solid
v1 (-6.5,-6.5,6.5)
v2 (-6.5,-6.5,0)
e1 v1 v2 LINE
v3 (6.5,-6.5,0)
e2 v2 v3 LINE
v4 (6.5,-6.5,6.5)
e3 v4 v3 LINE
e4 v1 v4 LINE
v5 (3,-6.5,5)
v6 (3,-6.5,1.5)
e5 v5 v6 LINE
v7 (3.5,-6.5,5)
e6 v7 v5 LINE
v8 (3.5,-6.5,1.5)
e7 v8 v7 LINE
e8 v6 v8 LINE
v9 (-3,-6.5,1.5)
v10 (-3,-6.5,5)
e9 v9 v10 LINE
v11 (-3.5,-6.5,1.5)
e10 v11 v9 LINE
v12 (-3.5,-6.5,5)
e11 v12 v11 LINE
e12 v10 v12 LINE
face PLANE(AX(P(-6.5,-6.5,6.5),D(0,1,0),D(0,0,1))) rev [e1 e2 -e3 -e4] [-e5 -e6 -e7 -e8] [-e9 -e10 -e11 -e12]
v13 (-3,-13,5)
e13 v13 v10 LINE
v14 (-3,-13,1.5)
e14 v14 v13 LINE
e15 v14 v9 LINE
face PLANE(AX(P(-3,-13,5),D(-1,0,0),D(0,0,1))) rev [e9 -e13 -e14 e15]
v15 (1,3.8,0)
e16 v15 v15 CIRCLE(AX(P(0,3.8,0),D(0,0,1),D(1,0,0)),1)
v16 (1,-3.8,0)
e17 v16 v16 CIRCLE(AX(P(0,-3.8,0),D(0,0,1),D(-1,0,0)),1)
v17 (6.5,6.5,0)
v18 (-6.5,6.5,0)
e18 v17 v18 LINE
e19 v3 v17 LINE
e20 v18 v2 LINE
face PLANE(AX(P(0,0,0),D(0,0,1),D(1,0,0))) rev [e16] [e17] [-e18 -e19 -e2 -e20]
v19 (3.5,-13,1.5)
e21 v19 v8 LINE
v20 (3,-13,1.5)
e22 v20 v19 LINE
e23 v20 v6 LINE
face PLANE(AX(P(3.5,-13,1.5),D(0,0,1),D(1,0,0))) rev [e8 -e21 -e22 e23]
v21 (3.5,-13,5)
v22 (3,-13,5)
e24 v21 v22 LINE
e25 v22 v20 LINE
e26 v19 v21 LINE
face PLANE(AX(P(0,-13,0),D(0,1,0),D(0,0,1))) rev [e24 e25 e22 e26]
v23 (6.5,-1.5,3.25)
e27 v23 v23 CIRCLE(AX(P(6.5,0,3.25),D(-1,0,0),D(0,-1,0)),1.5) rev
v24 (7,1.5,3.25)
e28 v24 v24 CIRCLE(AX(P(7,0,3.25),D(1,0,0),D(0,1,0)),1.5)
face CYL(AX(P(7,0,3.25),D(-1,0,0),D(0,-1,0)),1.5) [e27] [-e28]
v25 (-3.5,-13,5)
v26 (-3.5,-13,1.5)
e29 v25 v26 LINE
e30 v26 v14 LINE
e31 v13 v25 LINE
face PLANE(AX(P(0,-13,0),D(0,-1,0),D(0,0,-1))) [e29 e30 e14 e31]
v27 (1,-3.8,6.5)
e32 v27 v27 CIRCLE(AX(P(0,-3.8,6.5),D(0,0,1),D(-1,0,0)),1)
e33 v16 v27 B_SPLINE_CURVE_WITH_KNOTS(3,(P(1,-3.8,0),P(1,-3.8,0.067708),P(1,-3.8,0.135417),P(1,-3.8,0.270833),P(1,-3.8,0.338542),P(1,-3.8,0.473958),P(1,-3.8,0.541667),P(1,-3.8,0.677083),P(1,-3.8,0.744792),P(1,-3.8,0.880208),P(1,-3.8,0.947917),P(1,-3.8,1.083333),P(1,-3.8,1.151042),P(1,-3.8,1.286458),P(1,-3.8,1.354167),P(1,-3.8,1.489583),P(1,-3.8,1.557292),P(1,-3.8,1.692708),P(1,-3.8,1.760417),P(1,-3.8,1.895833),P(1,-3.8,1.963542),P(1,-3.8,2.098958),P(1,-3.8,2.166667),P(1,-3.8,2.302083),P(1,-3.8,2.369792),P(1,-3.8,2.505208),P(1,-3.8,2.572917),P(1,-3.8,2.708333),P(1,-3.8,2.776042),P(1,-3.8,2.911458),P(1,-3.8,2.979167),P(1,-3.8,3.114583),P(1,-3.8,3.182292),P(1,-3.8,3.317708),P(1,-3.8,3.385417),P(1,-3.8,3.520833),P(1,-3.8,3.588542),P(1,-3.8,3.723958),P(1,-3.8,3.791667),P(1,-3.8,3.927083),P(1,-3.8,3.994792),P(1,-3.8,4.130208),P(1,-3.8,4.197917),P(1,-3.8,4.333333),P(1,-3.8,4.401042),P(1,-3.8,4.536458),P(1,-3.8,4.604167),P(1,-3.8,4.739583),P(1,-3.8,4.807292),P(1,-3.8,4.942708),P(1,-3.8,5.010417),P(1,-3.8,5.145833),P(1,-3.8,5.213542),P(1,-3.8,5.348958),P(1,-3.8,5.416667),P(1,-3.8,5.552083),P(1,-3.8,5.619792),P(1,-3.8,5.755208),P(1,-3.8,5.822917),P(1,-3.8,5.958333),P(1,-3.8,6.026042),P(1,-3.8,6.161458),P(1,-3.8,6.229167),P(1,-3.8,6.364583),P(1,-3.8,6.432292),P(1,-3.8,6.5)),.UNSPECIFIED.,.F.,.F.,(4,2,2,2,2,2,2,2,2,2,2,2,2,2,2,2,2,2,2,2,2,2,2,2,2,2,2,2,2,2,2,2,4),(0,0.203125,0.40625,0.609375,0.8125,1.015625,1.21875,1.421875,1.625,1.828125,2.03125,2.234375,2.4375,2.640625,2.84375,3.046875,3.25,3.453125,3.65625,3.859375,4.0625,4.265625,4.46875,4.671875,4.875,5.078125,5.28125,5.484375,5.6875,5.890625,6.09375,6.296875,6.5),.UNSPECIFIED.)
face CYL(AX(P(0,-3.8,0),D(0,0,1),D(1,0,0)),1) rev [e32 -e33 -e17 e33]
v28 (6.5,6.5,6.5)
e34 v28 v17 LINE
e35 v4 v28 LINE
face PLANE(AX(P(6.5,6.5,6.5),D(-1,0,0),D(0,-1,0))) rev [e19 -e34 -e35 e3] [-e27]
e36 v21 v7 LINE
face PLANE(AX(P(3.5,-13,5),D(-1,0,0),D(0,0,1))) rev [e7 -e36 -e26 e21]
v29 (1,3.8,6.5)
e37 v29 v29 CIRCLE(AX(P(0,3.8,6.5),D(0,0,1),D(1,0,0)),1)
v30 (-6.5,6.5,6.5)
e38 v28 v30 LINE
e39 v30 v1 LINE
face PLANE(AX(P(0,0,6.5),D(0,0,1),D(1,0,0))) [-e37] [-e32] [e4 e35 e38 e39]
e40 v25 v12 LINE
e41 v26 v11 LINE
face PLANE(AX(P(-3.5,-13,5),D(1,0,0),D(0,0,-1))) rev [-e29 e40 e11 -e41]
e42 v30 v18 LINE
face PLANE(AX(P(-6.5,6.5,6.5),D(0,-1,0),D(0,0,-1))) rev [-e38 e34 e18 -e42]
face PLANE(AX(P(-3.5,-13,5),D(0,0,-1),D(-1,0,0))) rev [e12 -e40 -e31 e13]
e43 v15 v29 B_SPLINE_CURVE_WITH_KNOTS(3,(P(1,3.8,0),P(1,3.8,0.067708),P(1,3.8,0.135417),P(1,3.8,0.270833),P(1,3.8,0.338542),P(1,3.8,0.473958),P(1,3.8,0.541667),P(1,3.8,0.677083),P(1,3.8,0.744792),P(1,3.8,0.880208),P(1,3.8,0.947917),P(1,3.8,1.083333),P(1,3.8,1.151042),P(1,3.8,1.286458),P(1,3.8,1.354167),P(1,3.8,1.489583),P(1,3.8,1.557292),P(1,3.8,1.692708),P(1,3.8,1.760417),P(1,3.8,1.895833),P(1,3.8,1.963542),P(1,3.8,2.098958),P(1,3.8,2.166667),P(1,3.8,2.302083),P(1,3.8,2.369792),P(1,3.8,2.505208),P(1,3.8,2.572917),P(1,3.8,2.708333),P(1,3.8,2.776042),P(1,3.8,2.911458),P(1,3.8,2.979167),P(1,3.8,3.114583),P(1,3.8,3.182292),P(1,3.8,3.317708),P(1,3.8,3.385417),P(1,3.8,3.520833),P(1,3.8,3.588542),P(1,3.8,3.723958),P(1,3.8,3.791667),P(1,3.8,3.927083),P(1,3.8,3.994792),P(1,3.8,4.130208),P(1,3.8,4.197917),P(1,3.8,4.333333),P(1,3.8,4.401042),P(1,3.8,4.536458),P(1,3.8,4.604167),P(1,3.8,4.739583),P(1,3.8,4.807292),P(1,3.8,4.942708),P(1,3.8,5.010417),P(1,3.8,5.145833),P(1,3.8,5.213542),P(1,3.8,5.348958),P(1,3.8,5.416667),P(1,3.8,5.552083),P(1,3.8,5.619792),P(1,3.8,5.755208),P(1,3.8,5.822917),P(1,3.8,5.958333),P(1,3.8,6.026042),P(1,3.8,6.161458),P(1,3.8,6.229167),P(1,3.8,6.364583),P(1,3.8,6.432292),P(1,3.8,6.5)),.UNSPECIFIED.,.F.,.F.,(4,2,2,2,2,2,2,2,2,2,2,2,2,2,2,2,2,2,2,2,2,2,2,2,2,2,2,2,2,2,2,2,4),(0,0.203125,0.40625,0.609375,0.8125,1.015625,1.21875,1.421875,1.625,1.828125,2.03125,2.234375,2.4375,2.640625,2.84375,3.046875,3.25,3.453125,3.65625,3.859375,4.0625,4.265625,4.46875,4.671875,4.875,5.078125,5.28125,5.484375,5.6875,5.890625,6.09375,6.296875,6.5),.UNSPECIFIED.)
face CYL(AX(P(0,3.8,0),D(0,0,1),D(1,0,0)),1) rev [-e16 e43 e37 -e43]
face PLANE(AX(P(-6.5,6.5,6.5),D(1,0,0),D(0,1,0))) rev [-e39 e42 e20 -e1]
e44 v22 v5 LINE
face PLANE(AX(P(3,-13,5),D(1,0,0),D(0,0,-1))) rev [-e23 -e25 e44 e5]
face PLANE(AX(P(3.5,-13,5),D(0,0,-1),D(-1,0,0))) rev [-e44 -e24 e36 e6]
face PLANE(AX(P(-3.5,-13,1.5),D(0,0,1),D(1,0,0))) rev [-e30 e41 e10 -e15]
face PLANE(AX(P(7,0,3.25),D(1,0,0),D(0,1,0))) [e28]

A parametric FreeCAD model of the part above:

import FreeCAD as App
import Part
import Sketcher
Q = App.Units.Quantity

doc = App.newDocument("Part")
body = doc.addObject("PartDesign::Body", "Body")

# Sketch on XY plane
sketch1 = body.newObject("Sketcher::SketchObject", "Sketch")
sketch1.AttachmentSupport = (doc.getObject("XY_Plane"), [""])
sketch1.MapMode = "FlatFace"
sketch1.addGeometry([
    Part.LineSegment(App.Vector(-6, 6, 0), App.Vector(-6, -6, 0)),
    Part.LineSegment(App.Vector(-6, -6, 0), App.Vector(6, -6, 0)),
    Part.LineSegment(App.Vector(6, -6, 0), App.Vector(6, 6, 0)),
    Part.LineSegment(App.Vector(6, 6, 0), App.Vector(-6, 6, 0)),
], False)
sketch1.addConstraint([
    Sketcher.Constraint("Coincident", 0, 2, 1, 1),
    Sketcher.Constraint("Coincident", 1, 2, 2, 1),
    Sketcher.Constraint("Coincident", 2, 2, 3, 1),
    Sketcher.Constraint("Coincident", 3, 2, 0, 1),
    Sketcher.Constraint("Vertical", 0),
    Sketcher.Constraint("Horizontal", 1),
    Sketcher.Constraint("Vertical", 2),
    Sketcher.Constraint("Horizontal", 3),
    Sketcher.Constraint("Symmetric", 0, 2, 2, 2, -1, 1),
    Sketcher.Constraint("Equal", 3, 0),
    Sketcher.Constraint("DistanceX", 1, 1, 1, 2, Q("13 mm")),
])
pad1 = body.newObject("PartDesign::Pad", "Pad")
pad1.Profile = sketch1
pad1.Length = 6.5

# Sketch on XZ plane
sketch2 = body.newObject("Sketcher::SketchObject", "Sketch001")
sketch2.AttachmentSupport = (doc.getObject("XZ_Plane"), [""])
sketch2.MapMode = "FlatFace"
sketch2.AttachmentOffset = App.Placement(App.Vector(0, 0, 6.5), App.Rotation())
sketch2.addGeometry([
    Part.LineSegment(App.Vector(-3.5, 5, 0), App.Vector(-3.5, 1.5, 0)),  # 0
    Part.LineSegment(App.Vector(-3.5, 1.5, 0), App.Vector(-3, 1.5, 0)),  # 1
    Part.LineSegment(App.Vector(-3, 1.5, 0), App.Vector(-3, 5, 0)),  # 2
    Part.LineSegment(App.Vector(-3, 5, 0), App.Vector(-3.5, 5, 0)),  # 3
    Part.LineSegment(App.Vector(3, 5, 0), App.Vector(3, 1.5, 0)),  # 4
    Part.LineSegment(App.Vector(3, 1.5, 0), App.Vector(3.5, 1.5, 0)),  # 5
    Part.LineSegment(App.Vector(3.5, 1.5, 0), App.Vector(3.5, 5, 0)),  # 6
    Part.LineSegment(App.Vector(3.5, 5, 0), App.Vector(3, 5, 0)),  # 7
], False)
sketch2.addConstraint([
    Sketcher.Constraint("Coincident", 0, 2, 1, 1),
    Sketcher.Constraint("Coincident", 1, 2, 2, 1),
    Sketcher.Constraint("Coincident", 2, 2, 3, 1),
    Sketcher.Constraint("Coincident", 3, 2, 0, 1),
    Sketcher.Constraint("Coincident", 4, 2, 5, 1),
    Sketcher.Constraint("Coincident", 5, 2, 6, 1),
    Sketcher.Constraint("Coincident", 6, 2, 7, 1),
    Sketcher.Constraint("Coincident", 7, 2, 4, 1),
    Sketcher.Constraint("Vertical", 0),
    Sketcher.Constraint("Horizontal", 1),
    Sketcher.Constraint("Vertical", 2),
    Sketcher.Constraint("Horizontal", 3),
    Sketcher.Constraint("Vertical", 4),
    Sketcher.Constraint("Horizontal", 5),
    Sketcher.Constraint("Vertical", 6),
    Sketcher.Constraint("Horizontal", 7),
    Sketcher.Constraint("Symmetric", 1, 2, 4, 2, -2),
    Sketcher.Constraint("Symmetric", 3, 2, 6, 2, -2),
    Sketcher.Constraint("DistanceX", 1, 1, 1, 2, Q("0.5 mm")),
    Sketcher.Constraint("DistanceY", 0, 2, 0, 1, Q("3.5 mm")),
    Sketcher.Constraint("DistanceX", 1, 2, -1, 1, Q("3 mm")),
    Sketcher.Constraint("DistanceY", -1, 1, 2, 2, Q("5 mm")),
])
pad2 = body.newObject("PartDesign::Pad", "Pad001")
pad2.Profile = sketch2
pad2.Length = 6.5

# Sketch on XY plane
sketch3 = body.newObject("Sketcher::SketchObject", "Sketch002")
sketch3.AttachmentSupport = (doc.getObject("XY_Plane"), [""])
sketch3.MapMode = "FlatFace"
sketch3.AttachmentOffset = App.Placement(App.Vector(0, 0, 6.5), App.Rotation())
sketch3.addGeometry([
    Part.Circle(App.Vector(0, 3.8, 0), App.Vector(0, 0, 1), 1),
    Part.Circle(App.Vector(0, -3.8, 0), App.Vector(0, 0, 1), 1),
], False)
sketch3.addConstraint([
    Sketcher.Constraint("Equal", 0, 1),
    Sketcher.Constraint("Symmetric", 0, 3, 1, 3, -1, 1),
    Sketcher.Constraint("PointOnObject", 0, 3, -2),
    Sketcher.Constraint("Diameter", 0, Q("2 mm")),
    Sketcher.Constraint("DistanceY", -1, 1, 0, 3, Q("3.8 mm")),
])
pocket1 = body.newObject("PartDesign::Pocket", "Pocket")
pocket1.Profile = sketch3
pocket1.Type = "ThroughAll"

# Sketch on YZ plane
sketch4 = body.newObject("Sketcher::SketchObject", "Sketch003")
sketch4.AttachmentSupport = (doc.getObject("YZ_Plane"), [""])
sketch4.MapMode = "FlatFace"
sketch4.AttachmentOffset = App.Placement(App.Vector(0, 0, 6.5), App.Rotation())
sketch4.addGeometry(Part.Circle(App.Vector(0, 3.2, 0), App.Vector(0, 0, 1), 1.5), False)
sketch4.addConstraint([
    Sketcher.Constraint("PointOnObject", 0, 3, -2),
    Sketcher.Constraint("Diameter", 0, Q("3 mm")),
    Sketcher.Constraint("DistanceY", -1, 1, 0, 3, Q("3.25 mm")),
])
pad3 = body.newObject("PartDesign::Pad", "Pad002")
pad3.Profile = sketch4
pad3.Length = 0.5

doc.recompute()
